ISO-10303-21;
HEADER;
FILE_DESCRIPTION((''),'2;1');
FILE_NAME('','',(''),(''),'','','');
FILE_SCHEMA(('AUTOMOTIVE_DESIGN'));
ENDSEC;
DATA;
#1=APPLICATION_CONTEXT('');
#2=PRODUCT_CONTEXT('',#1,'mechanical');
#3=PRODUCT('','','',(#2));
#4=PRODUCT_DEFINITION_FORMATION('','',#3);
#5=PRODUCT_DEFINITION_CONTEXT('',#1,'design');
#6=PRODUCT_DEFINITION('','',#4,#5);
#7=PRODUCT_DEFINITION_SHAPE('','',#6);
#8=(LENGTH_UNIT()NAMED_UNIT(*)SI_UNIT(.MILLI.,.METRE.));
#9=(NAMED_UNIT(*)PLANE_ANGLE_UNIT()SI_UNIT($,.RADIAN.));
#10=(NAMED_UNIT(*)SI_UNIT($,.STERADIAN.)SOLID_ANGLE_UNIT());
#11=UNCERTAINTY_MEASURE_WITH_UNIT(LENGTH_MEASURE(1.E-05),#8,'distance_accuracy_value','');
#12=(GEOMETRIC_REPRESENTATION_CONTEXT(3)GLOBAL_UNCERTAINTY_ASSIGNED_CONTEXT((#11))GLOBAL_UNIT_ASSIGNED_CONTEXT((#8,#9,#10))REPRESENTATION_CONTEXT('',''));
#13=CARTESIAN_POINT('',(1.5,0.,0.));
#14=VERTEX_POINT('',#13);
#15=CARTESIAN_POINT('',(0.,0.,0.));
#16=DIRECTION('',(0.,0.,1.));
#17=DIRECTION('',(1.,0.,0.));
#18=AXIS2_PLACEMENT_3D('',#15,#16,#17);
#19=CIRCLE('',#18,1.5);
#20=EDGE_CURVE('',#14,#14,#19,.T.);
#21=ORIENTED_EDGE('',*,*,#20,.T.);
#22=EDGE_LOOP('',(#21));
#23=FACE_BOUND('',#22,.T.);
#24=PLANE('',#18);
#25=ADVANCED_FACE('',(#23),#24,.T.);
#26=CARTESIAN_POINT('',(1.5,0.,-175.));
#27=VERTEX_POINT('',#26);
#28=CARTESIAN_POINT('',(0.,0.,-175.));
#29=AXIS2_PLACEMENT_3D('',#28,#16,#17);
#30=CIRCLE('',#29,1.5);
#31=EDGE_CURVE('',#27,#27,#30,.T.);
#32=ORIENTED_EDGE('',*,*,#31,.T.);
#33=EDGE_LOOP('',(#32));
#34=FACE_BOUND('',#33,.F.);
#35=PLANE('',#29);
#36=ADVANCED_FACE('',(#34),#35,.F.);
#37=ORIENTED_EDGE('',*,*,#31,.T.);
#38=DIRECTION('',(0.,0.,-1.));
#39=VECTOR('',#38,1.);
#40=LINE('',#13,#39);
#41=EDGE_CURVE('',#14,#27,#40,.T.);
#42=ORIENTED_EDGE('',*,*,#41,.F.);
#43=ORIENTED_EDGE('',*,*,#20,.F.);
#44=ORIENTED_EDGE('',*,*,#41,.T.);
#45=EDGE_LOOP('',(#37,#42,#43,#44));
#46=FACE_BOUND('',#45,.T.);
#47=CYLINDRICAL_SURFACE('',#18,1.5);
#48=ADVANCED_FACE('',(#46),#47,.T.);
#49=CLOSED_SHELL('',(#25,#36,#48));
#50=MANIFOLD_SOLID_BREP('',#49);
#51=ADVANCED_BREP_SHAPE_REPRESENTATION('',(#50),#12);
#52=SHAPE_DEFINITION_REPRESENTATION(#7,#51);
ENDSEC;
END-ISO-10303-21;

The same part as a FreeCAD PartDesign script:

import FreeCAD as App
import Part
import Sketcher
Q = App.Units.Quantity

doc = App.newDocument("Part")
body = doc.addObject("PartDesign::Body", "Body")

sketch1 = body.newObject("Sketcher::SketchObject", "Sketch")
sketch1.AttachmentSupport = (doc.getObject("XY_Plane"), [""])
sketch1.MapMode = "FlatFace"
sketch1.addGeometry(Part.Circle(App.Vector(0, 0, 0), App.Vector(0, 0, 1), 1.5), False)
sketch1.addConstraint(Sketcher.Constraint("Coincident", 0, 3, -1, 1))
sketch1.addConstraint(Sketcher.Constraint("Diameter", 0, Q("3 mm")))
pad1 = body.newObject("PartDesign::Pad", "Pad")
pad1.Profile = sketch1
pad1.Length = 175
pad1.Reversed = True

doc.recompute()
